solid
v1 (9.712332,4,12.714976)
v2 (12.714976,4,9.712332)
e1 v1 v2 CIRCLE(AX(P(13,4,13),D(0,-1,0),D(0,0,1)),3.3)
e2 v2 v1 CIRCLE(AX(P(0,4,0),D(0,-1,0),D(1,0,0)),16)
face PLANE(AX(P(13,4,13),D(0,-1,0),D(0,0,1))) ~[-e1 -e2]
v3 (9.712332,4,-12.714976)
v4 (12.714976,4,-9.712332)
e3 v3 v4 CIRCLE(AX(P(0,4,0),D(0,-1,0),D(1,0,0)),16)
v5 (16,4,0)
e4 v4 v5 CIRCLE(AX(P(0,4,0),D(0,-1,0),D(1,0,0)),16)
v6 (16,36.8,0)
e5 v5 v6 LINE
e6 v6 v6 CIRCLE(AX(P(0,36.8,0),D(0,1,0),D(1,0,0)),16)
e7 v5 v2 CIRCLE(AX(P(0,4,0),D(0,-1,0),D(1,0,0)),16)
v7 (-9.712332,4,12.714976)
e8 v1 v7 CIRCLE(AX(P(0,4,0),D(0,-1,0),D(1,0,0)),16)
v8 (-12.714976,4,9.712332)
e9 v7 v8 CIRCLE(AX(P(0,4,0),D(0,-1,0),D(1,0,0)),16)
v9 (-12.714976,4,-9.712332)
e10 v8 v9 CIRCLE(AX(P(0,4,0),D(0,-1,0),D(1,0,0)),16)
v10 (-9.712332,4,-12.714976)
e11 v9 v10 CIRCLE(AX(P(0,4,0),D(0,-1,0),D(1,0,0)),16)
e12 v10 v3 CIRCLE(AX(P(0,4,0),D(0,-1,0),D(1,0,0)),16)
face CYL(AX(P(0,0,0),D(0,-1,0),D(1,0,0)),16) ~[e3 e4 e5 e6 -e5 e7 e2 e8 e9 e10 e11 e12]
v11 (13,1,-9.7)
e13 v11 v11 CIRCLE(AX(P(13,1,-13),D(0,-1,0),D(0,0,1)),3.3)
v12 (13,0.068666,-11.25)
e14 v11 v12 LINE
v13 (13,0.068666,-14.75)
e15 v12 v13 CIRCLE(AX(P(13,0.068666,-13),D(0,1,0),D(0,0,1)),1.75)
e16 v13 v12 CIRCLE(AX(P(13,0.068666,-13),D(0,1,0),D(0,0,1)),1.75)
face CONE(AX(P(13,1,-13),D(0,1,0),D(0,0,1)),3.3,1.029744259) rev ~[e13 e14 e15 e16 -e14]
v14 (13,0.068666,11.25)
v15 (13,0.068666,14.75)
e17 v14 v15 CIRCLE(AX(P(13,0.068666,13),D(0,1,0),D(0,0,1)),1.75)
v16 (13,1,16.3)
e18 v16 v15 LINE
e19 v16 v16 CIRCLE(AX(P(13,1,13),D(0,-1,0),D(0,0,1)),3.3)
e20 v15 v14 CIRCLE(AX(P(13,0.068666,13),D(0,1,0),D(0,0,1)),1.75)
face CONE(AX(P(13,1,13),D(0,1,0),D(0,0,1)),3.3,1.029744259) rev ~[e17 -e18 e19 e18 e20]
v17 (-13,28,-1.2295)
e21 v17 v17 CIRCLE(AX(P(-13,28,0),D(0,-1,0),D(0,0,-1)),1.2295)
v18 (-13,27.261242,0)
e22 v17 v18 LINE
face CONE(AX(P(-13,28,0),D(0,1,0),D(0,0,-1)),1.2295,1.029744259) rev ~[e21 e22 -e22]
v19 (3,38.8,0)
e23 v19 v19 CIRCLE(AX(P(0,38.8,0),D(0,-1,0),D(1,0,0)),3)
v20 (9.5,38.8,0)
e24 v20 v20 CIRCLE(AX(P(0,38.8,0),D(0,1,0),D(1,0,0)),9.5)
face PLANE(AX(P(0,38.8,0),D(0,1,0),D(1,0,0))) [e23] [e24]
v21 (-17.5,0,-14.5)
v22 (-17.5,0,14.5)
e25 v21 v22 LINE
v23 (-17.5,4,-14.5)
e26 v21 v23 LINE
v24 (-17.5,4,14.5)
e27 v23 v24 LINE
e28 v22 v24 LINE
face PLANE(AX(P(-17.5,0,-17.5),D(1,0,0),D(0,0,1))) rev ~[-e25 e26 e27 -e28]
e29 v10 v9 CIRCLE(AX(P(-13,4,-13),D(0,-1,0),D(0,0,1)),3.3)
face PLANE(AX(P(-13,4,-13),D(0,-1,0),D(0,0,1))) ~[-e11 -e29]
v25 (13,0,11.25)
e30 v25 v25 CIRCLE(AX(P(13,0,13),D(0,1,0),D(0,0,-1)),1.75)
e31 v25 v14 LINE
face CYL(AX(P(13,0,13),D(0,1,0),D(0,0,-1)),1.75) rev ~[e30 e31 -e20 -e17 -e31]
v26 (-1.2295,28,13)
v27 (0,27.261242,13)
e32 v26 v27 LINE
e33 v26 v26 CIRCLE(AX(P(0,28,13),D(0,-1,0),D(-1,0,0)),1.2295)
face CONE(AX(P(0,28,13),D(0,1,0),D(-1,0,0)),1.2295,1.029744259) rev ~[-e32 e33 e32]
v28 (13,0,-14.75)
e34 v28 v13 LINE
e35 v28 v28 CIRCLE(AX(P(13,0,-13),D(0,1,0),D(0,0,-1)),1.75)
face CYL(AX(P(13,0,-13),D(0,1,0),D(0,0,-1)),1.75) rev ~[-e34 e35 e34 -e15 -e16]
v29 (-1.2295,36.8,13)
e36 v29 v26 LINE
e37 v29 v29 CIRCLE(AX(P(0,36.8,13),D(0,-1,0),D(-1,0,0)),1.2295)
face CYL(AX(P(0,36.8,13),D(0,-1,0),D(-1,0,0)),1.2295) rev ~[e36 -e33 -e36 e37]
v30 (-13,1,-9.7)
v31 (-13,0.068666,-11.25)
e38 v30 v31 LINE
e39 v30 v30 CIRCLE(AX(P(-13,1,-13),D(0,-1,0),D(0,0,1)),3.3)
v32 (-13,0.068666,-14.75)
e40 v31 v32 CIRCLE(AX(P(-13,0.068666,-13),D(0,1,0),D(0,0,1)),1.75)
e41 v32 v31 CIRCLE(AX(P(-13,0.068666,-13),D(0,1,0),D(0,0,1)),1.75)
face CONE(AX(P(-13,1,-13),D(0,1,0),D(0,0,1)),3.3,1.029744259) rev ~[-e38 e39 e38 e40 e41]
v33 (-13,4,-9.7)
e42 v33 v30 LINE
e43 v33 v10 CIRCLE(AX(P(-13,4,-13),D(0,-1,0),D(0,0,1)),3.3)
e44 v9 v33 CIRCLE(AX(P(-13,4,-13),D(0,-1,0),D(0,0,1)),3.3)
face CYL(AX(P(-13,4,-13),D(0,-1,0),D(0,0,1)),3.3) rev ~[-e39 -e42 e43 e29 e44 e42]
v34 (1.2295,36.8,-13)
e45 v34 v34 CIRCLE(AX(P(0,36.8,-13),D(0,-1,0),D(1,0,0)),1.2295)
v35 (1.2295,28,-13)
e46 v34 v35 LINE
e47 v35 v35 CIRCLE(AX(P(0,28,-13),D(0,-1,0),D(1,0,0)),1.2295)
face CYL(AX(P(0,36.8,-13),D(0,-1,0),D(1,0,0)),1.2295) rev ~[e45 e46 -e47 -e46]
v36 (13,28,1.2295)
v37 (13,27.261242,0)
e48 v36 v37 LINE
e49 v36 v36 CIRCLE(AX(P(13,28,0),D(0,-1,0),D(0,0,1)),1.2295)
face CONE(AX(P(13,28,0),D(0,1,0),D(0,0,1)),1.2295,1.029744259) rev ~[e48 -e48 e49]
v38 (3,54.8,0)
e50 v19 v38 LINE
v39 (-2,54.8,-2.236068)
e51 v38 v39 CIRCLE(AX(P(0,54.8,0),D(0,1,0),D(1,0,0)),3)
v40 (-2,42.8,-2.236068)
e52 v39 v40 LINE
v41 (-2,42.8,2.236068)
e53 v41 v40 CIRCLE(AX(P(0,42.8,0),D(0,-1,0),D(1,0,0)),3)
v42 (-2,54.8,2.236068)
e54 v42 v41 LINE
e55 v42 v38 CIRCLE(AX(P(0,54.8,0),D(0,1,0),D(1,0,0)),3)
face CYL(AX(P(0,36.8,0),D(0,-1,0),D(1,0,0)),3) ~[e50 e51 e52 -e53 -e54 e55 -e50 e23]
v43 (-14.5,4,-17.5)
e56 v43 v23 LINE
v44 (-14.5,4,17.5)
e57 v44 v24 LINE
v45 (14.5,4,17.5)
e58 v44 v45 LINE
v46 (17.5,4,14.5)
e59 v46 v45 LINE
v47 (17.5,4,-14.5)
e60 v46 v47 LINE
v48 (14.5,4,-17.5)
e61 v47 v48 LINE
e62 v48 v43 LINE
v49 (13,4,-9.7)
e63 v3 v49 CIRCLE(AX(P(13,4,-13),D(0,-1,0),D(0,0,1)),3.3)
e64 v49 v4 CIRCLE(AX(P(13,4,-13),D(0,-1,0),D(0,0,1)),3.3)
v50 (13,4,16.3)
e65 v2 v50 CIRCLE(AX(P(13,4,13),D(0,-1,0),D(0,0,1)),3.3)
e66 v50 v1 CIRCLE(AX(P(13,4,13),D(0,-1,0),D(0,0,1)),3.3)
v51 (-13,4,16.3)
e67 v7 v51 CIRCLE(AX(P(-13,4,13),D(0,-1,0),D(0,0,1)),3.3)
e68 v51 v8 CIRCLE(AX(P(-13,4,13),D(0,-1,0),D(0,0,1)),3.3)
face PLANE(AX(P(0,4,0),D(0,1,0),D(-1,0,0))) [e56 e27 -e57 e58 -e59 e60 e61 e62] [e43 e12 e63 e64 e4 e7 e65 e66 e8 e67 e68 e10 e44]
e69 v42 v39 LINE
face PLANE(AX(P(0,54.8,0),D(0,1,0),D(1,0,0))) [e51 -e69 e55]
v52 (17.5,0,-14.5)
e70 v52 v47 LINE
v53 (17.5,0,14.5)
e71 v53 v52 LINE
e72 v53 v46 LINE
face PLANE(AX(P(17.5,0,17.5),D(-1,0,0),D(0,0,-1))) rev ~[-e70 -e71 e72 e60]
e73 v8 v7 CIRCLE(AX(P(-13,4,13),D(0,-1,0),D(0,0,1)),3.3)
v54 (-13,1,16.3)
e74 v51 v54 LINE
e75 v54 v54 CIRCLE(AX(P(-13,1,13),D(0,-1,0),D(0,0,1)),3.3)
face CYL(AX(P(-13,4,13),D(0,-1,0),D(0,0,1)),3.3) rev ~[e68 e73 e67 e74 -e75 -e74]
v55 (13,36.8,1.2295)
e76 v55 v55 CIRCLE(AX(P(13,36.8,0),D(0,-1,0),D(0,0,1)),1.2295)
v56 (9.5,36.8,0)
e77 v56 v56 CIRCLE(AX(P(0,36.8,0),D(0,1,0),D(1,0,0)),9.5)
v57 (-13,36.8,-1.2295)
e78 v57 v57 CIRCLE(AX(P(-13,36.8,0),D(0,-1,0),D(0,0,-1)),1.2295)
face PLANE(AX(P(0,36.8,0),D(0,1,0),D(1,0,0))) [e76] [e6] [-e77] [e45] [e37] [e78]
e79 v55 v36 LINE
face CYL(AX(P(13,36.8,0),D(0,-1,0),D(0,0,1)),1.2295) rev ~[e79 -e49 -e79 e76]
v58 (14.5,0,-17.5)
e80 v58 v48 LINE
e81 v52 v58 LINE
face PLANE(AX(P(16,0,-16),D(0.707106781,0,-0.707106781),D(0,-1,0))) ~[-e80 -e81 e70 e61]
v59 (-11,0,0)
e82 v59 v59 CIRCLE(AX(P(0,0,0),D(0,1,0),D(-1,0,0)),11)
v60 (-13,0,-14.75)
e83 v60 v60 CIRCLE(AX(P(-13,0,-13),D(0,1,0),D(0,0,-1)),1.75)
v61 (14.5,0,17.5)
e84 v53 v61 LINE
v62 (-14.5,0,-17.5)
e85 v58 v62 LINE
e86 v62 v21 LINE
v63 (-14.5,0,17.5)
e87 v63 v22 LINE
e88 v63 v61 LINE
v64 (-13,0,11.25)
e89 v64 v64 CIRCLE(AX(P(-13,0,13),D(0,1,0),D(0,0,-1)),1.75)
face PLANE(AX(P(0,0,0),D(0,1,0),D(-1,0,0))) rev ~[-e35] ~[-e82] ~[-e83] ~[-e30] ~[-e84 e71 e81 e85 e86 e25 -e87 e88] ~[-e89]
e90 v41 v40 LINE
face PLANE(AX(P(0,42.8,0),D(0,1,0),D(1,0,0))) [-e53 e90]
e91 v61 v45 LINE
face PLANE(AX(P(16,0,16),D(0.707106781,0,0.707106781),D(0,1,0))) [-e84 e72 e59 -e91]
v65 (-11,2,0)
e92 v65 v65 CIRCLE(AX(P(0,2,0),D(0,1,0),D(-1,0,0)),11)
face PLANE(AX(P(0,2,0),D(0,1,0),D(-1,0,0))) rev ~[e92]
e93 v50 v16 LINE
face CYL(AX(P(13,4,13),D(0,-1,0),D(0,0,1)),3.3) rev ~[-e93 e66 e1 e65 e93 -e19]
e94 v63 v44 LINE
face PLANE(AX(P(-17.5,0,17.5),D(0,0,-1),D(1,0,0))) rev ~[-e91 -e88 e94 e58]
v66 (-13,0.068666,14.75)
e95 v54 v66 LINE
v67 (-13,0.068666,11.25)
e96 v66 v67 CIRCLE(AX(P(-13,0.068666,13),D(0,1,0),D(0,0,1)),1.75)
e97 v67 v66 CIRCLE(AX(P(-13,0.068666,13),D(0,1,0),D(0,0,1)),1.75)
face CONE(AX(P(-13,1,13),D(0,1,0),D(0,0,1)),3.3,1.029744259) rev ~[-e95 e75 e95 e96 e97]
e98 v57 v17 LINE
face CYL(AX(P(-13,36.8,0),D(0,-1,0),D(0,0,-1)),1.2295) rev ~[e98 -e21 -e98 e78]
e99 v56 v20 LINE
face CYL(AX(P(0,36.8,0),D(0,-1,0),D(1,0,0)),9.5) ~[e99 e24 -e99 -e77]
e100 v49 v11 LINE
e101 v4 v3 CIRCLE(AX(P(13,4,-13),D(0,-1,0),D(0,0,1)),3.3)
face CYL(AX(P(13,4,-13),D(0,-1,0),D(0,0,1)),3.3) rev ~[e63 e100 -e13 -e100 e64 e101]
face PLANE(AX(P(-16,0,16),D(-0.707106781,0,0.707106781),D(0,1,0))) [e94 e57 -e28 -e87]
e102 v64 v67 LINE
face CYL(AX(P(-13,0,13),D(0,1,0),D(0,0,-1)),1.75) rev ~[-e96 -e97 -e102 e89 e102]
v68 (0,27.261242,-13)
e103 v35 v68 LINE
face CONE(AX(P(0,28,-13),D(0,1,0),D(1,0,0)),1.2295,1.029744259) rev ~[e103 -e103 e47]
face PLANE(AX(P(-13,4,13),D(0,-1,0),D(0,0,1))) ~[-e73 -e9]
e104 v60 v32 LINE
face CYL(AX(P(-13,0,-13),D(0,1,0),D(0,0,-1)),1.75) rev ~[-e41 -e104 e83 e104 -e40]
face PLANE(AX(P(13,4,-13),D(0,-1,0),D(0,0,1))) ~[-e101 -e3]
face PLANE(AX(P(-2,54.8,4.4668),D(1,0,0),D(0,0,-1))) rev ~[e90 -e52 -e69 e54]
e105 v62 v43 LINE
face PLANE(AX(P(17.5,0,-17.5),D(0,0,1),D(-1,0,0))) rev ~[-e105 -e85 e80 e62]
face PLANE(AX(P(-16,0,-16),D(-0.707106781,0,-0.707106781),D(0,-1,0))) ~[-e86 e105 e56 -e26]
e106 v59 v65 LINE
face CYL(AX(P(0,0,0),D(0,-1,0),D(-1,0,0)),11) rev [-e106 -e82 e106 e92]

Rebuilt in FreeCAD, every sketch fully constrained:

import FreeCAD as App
import Part
import Sketcher
from FreeCAD import Vector
Q = App.Units.Quantity


def edges_at(feature, points):
    """Names of the edges that pass closest to the given points."""
    edges = feature.Shape.Edges
    near = lambda p: min(range(len(edges)), key=lambda i: edges[i].distToShape(Part.Vertex(*p))[0])
    return sorted({f"Edge{near(p) + 1}" for p in points})


def add_polygon(sketch, points):
    """Adds a closed chain of lines whose ends are joined by coincident constraints."""
    first, n = sketch.GeometryCount, len(points)
    for a, b in zip(points, points[1:] + points[:1]):
        sketch.addGeometry(Part.LineSegment(App.Vector(*a, 0), App.Vector(*b, 0)), False)
    for i in range(n):
        sketch.addConstraint(Sketcher.Constraint("Coincident", first + i, 2, first + (i + 1) % n, 1))

doc = App.newDocument("Part")
body = doc.addObject("PartDesign::Body", "Body")

sketch1 = body.newObject("Sketcher::SketchObject", "Sketch")
sketch1.AttachmentSupport = (doc.getObject("XZ_Plane"), [""])
sketch1.MapMode = "FlatFace"
add_polygon(sketch1, [(18, 18), (18, -18), (-18, -18), (-18, 18)])
sketch1.addConstraint(Sketcher.Constraint("Vertical", 0))
sketch1.addConstraint(Sketcher.Constraint("Horizontal", 1))
sketch1.addConstraint(Sketcher.Constraint("Vertical", 2))
sketch1.addConstraint(Sketcher.Constraint("Horizontal", 3))
sketch1.addConstraint(Sketcher.Constraint("Symmetric", 0, 2, 2, 2, -1, 1))
sketch1.addConstraint(Sketcher.Constraint("Equal", 3, 0))
sketch1.addConstraint(Sketcher.Constraint("DistanceX", 1, 2, 1, 1, Q("35 mm")))
pad1 = body.newObject("PartDesign::Pad", "Pad")
pad1.Profile = sketch1
pad1.Length = 4
pad1.Reversed = True

sketch2 = body.newObject("Sketcher::SketchObject", "Sketch001")
sketch2.AttachmentSupport = (doc.getObject("XZ_Plane"), [""])
sketch2.MapMode = "FlatFace"
sketch2.addGeometry(Part.Circle(Vector(0, 0, 0), Vector(0, 0, 1), 16), False)
sketch2.addConstraint(Sketcher.Constraint("Coincident", 0, 3, -1, 1))
sketch2.addConstraint(Sketcher.Constraint("Diameter", 0, Q("32 mm")))
pad2 = body.newObject("PartDesign::Pad", "Pad001")
pad2.Profile = sketch2
pad2.Length = 36.8
pad2.Reversed = True

sketch3 = body.newObject("Sketcher::SketchObject", "Sketch002")
sketch3.AttachmentSupport = (doc.getObject("XZ_Plane"), [""])
sketch3.MapMode = "FlatFace"
sketch3.AttachmentOffset = App.Placement(Vector(0, 0, -36.8), App.Rotation())
sketch3.addGeometry(Part.Circle(Vector(0, 0, 0), Vector(0, 0, 1), 10), False)
sketch3.addConstraint(Sketcher.Constraint("Coincident", 0, 3, -1, 1))
sketch3.addConstraint(Sketcher.Constraint("Diameter", 0, Q("19 mm")))
pad3 = body.newObject("PartDesign::Pad", "Pad002")
pad3.Profile = sketch3
pad3.Length = 2
pad3.Reversed = True

sketch4 = body.newObject("Sketcher::SketchObject", "Sketch003")
sketch4.AttachmentSupport = (doc.getObject("XZ_Plane"), [""])
sketch4.MapMode = "FlatFace"
sketch4.AttachmentOffset = App.Placement(Vector(0, 0, -36.8), App.Rotation())
sketch4.addGeometry(Part.Circle(Vector(0, 0, 0), Vector(0, 0, 1), 3), False)
sketch4.addConstraint(Sketcher.Constraint("Coincident", 0, 3, -1, 1))
sketch4.addConstraint(Sketcher.Constraint("Diameter", 0, Q("6 mm")))
pad4 = body.newObject("PartDesign::Pad", "Pad003")
pad4.Profile = sketch4
pad4.Length = 18
pad4.Reversed = True

sketch5 = body.newObject("Sketcher::SketchObject", "Sketch004")
sketch5.AttachmentSupport = (doc.getObject("XZ_Plane"), [""])
sketch5.MapMode = "FlatFace"
sketch5.AttachmentOffset = App.Placement(Vector(0, 0, -36.8), App.Rotation())
sketch5.addGeometry(Part.Circle(Vector(13, 0, 0), Vector(0, 0, 1), 1.2), False)
sketch5.addConstraint(Sketcher.Constraint("PointOnObject", 0, 3, -1))
sketch5.addConstraint(Sketcher.Constraint("Diameter", 0, Q("2.459 mm")))
sketch5.addConstraint(Sketcher.Constraint("DistanceX", -1, 1, 0, 3, Q("13 mm")))
doc.recompute()
hole = body.newObject("PartDesign::Hole", "Hole")
hole.Profile = sketch5
hole.ThreadType = "None"
hole.Diameter = 2.459
hole.DepthType = "Dimension"
hole.Depth = 8.8
hole.DrillPoint = "Angled"
hole.DrillPointAngle = 118
hole.Reversed = True
doc.recompute()

polarpattern = body.newObject("PartDesign::PolarPattern", "PolarPattern")
polarpattern.Originals = [hole]
polarpattern.Axis = (doc.getObject("Y_Axis"), [""])
polarpattern.Angle = 360
polarpattern.Occurrences = 4
body.Tip = polarpattern
doc.recompute()

chamfer = body.newObject("PartDesign::Chamfer", "Chamfer")
chamfer.Base = (polarpattern, edges_at(polarpattern, [
    (17.5, 2, -17.5),
    (-17.5, 2, -17.5),
    (17.5, 2, 17.5),
    (-17.5, 2, 17.5),
]))
chamfer.Size = 3

sketch6 = body.newObject("Sketcher::SketchObject", "Sketch005")
sketch6.AttachmentSupport = (doc.getObject("XZ_Plane"), [""])
sketch6.MapMode = "FlatFace"
sketch6.addGeometry(Part.Circle(Vector(0, 0, 0), Vector(0, 0, 1), 11), False)
sketch6.addConstraint(Sketcher.Constraint("Coincident", 0, 3, -1, 1))
sketch6.addConstraint(Sketcher.Constraint("Diameter", 0, Q("22 mm")))
pocket1 = body.newObject("PartDesign::Pocket", "Pocket")
pocket1.Profile = sketch6
pocket1.Length = 2

sketch7 = body.newObject("Sketcher::SketchObject", "Sketch006")
sketch7.AttachmentSupport = (doc.getObject("XZ_Plane"), [""])
sketch7.MapMode = "FlatFace"
sketch7.addGeometry(Part.Circle(Vector(13, 13, 0), Vector(0, 0, 1), 1.8), False)
sketch7.addGeometry(Part.Circle(Vector(-13, 13, 0), Vector(0, 0, 1), 1.8), False)
sketch7.addGeometry(Part.Circle(Vector(-13, -13, 0), Vector(0, 0, 1), 1.8), False)
sketch7.addGeometry(Part.Circle(Vector(13, -13, 0), Vector(0, 0, 1), 1.8), False)
sketch7.addConstraint(Sketcher.Constraint("Equal", 0, 1))
sketch7.addConstraint(Sketcher.Constraint("Equal", 1, 2))
sketch7.addConstraint(Sketcher.Constraint("Equal", 2, 3))
sketch7.addConstraint(Sketcher.Constraint("Symmetric", 0, 3, 2, 3, -1, 1))
sketch7.addConstraint(Sketcher.Constraint("Symmetric", 1, 3, 3, 3, -1, 1))
sketch7.addConstraint(Sketcher.Constraint("Symmetric", 0, 3, 1, 3, -2))
sketch7.addConstraint(Sketcher.Constraint("Diameter", 0, Q("3.5 mm")))
sketch7.addConstraint(Sketcher.Constraint("DistanceX", -1, 1, 0, 3, Q("13 mm")))
sketch7.addConstraint(Sketcher.Constraint("DistanceY", -1, 1, 0, 3, Q("13 mm")))
doc.recompute()
hole2 = body.newObject("PartDesign::Hole", "Hole001")
hole2.Profile = sketch7
hole2.ThreadType = "None"
hole2.Diameter = 3.5
hole2.DepthType = "Dimension"
hole2.Depth = 4
hole2.DrillPoint = "Flat"

sketch8 = body.newObject("Sketcher::SketchObject", "Sketch007")
sketch8.AttachmentSupport = (doc.getObject("XZ_Plane"), [""])
sketch8.MapMode = "FlatFace"
sketch8.AttachmentOffset = App.Placement(Vector(0, 0, -4), App.Rotation())
sketch8.addGeometry(Part.Circle(Vector(-13, 13, 0), Vector(0, 0, 1), 3.3), False)
sketch8.addGeometry(Part.Circle(Vector(-13, -13, 0), Vector(0, 0, 1), 3.3), False)
sketch8.addGeometry(Part.Circle(Vector(13, -13, 0), Vector(0, 0, 1), 3.3), False)
sketch8.addGeometry(Part.Circle(Vector(13, 13, 0), Vector(0, 0, 1), 3.3), False)
sketch8.addConstraint(Sketcher.Constraint("Equal", 0, 1))
sketch8.addConstraint(Sketcher.Constraint("Equal", 1, 2))
sketch8.addConstraint(Sketcher.Constraint("Equal", 2, 3))
sketch8.addConstraint(Sketcher.Constraint("Symmetric", 0, 3, 2, 3, -1, 1))
sketch8.addConstraint(Sketcher.Constraint("Symmetric", 1, 3, 3, 3, -1, 1))
sketch8.addConstraint(Sketcher.Constraint("Symmetric", 1, 3, 2, 3, -2))
sketch8.addConstraint(Sketcher.Constraint("Diameter", 0, Q("6.6 mm")))
sketch8.addConstraint(Sketcher.Constraint("DistanceX", 0, 3, -1, 1, Q("13 mm")))
sketch8.addConstraint(Sketcher.Constraint("DistanceY", -1, 1, 0, 3, Q("13 mm")))
doc.recompute()
hole3 = body.newObject("PartDesign::Hole", "Hole002")
hole3.Profile = sketch8
hole3.ThreadType = "None"
hole3.Diameter = 6.6
hole3.DepthType = "Dimension"
hole3.Depth = 3
hole3.DrillPoint = "Angled"
hole3.DrillPointAngle = 118
hole3.Reversed = True

sketch9 = body.newObject("Sketcher::SketchObject", "Sketch008")
sketch9.AttachmentSupport = (doc.getObject("XZ_Plane"), [""])
sketch9.MapMode = "FlatFace"
sketch9.AttachmentOffset = App.Placement(Vector(0, 0, -54.8), App.Rotation())
add_polygon(sketch9, [(-4.7, -4.6), (-4.7, 4.5), (-2, 4.5), (-2, -4.6)])
sketch9.addConstraint(Sketcher.Constraint("Vertical", 0))
sketch9.addConstraint(Sketcher.Constraint("Horizontal", 1))
sketch9.addConstraint(Sketcher.Constraint("Vertical", 2))
sketch9.addConstraint(Sketcher.Constraint("Horizontal", 3))
sketch9.addConstraint(Sketcher.Constraint("DistanceX", 1, 2, -1, 1, Q("2 mm")))
sketch9.addConstraint(Sketcher.Constraint("DistanceX", 1, 1, 1, 2, Q("2.6716 mm")))
sketch9.addConstraint(Sketcher.Constraint("DistanceY", 0, 1, 0, 2, Q("9.0835 mm")))
sketch9.addConstraint(Sketcher.Constraint("DistanceY", -1, 1, 0, 2, Q("4.4668 mm")))
pocket2 = body.newObject("PartDesign::Pocket", "Pocket001")
pocket2.Profile = sketch9
pocket2.Length = 12
pocket2.Reversed = True

doc.recompute()
